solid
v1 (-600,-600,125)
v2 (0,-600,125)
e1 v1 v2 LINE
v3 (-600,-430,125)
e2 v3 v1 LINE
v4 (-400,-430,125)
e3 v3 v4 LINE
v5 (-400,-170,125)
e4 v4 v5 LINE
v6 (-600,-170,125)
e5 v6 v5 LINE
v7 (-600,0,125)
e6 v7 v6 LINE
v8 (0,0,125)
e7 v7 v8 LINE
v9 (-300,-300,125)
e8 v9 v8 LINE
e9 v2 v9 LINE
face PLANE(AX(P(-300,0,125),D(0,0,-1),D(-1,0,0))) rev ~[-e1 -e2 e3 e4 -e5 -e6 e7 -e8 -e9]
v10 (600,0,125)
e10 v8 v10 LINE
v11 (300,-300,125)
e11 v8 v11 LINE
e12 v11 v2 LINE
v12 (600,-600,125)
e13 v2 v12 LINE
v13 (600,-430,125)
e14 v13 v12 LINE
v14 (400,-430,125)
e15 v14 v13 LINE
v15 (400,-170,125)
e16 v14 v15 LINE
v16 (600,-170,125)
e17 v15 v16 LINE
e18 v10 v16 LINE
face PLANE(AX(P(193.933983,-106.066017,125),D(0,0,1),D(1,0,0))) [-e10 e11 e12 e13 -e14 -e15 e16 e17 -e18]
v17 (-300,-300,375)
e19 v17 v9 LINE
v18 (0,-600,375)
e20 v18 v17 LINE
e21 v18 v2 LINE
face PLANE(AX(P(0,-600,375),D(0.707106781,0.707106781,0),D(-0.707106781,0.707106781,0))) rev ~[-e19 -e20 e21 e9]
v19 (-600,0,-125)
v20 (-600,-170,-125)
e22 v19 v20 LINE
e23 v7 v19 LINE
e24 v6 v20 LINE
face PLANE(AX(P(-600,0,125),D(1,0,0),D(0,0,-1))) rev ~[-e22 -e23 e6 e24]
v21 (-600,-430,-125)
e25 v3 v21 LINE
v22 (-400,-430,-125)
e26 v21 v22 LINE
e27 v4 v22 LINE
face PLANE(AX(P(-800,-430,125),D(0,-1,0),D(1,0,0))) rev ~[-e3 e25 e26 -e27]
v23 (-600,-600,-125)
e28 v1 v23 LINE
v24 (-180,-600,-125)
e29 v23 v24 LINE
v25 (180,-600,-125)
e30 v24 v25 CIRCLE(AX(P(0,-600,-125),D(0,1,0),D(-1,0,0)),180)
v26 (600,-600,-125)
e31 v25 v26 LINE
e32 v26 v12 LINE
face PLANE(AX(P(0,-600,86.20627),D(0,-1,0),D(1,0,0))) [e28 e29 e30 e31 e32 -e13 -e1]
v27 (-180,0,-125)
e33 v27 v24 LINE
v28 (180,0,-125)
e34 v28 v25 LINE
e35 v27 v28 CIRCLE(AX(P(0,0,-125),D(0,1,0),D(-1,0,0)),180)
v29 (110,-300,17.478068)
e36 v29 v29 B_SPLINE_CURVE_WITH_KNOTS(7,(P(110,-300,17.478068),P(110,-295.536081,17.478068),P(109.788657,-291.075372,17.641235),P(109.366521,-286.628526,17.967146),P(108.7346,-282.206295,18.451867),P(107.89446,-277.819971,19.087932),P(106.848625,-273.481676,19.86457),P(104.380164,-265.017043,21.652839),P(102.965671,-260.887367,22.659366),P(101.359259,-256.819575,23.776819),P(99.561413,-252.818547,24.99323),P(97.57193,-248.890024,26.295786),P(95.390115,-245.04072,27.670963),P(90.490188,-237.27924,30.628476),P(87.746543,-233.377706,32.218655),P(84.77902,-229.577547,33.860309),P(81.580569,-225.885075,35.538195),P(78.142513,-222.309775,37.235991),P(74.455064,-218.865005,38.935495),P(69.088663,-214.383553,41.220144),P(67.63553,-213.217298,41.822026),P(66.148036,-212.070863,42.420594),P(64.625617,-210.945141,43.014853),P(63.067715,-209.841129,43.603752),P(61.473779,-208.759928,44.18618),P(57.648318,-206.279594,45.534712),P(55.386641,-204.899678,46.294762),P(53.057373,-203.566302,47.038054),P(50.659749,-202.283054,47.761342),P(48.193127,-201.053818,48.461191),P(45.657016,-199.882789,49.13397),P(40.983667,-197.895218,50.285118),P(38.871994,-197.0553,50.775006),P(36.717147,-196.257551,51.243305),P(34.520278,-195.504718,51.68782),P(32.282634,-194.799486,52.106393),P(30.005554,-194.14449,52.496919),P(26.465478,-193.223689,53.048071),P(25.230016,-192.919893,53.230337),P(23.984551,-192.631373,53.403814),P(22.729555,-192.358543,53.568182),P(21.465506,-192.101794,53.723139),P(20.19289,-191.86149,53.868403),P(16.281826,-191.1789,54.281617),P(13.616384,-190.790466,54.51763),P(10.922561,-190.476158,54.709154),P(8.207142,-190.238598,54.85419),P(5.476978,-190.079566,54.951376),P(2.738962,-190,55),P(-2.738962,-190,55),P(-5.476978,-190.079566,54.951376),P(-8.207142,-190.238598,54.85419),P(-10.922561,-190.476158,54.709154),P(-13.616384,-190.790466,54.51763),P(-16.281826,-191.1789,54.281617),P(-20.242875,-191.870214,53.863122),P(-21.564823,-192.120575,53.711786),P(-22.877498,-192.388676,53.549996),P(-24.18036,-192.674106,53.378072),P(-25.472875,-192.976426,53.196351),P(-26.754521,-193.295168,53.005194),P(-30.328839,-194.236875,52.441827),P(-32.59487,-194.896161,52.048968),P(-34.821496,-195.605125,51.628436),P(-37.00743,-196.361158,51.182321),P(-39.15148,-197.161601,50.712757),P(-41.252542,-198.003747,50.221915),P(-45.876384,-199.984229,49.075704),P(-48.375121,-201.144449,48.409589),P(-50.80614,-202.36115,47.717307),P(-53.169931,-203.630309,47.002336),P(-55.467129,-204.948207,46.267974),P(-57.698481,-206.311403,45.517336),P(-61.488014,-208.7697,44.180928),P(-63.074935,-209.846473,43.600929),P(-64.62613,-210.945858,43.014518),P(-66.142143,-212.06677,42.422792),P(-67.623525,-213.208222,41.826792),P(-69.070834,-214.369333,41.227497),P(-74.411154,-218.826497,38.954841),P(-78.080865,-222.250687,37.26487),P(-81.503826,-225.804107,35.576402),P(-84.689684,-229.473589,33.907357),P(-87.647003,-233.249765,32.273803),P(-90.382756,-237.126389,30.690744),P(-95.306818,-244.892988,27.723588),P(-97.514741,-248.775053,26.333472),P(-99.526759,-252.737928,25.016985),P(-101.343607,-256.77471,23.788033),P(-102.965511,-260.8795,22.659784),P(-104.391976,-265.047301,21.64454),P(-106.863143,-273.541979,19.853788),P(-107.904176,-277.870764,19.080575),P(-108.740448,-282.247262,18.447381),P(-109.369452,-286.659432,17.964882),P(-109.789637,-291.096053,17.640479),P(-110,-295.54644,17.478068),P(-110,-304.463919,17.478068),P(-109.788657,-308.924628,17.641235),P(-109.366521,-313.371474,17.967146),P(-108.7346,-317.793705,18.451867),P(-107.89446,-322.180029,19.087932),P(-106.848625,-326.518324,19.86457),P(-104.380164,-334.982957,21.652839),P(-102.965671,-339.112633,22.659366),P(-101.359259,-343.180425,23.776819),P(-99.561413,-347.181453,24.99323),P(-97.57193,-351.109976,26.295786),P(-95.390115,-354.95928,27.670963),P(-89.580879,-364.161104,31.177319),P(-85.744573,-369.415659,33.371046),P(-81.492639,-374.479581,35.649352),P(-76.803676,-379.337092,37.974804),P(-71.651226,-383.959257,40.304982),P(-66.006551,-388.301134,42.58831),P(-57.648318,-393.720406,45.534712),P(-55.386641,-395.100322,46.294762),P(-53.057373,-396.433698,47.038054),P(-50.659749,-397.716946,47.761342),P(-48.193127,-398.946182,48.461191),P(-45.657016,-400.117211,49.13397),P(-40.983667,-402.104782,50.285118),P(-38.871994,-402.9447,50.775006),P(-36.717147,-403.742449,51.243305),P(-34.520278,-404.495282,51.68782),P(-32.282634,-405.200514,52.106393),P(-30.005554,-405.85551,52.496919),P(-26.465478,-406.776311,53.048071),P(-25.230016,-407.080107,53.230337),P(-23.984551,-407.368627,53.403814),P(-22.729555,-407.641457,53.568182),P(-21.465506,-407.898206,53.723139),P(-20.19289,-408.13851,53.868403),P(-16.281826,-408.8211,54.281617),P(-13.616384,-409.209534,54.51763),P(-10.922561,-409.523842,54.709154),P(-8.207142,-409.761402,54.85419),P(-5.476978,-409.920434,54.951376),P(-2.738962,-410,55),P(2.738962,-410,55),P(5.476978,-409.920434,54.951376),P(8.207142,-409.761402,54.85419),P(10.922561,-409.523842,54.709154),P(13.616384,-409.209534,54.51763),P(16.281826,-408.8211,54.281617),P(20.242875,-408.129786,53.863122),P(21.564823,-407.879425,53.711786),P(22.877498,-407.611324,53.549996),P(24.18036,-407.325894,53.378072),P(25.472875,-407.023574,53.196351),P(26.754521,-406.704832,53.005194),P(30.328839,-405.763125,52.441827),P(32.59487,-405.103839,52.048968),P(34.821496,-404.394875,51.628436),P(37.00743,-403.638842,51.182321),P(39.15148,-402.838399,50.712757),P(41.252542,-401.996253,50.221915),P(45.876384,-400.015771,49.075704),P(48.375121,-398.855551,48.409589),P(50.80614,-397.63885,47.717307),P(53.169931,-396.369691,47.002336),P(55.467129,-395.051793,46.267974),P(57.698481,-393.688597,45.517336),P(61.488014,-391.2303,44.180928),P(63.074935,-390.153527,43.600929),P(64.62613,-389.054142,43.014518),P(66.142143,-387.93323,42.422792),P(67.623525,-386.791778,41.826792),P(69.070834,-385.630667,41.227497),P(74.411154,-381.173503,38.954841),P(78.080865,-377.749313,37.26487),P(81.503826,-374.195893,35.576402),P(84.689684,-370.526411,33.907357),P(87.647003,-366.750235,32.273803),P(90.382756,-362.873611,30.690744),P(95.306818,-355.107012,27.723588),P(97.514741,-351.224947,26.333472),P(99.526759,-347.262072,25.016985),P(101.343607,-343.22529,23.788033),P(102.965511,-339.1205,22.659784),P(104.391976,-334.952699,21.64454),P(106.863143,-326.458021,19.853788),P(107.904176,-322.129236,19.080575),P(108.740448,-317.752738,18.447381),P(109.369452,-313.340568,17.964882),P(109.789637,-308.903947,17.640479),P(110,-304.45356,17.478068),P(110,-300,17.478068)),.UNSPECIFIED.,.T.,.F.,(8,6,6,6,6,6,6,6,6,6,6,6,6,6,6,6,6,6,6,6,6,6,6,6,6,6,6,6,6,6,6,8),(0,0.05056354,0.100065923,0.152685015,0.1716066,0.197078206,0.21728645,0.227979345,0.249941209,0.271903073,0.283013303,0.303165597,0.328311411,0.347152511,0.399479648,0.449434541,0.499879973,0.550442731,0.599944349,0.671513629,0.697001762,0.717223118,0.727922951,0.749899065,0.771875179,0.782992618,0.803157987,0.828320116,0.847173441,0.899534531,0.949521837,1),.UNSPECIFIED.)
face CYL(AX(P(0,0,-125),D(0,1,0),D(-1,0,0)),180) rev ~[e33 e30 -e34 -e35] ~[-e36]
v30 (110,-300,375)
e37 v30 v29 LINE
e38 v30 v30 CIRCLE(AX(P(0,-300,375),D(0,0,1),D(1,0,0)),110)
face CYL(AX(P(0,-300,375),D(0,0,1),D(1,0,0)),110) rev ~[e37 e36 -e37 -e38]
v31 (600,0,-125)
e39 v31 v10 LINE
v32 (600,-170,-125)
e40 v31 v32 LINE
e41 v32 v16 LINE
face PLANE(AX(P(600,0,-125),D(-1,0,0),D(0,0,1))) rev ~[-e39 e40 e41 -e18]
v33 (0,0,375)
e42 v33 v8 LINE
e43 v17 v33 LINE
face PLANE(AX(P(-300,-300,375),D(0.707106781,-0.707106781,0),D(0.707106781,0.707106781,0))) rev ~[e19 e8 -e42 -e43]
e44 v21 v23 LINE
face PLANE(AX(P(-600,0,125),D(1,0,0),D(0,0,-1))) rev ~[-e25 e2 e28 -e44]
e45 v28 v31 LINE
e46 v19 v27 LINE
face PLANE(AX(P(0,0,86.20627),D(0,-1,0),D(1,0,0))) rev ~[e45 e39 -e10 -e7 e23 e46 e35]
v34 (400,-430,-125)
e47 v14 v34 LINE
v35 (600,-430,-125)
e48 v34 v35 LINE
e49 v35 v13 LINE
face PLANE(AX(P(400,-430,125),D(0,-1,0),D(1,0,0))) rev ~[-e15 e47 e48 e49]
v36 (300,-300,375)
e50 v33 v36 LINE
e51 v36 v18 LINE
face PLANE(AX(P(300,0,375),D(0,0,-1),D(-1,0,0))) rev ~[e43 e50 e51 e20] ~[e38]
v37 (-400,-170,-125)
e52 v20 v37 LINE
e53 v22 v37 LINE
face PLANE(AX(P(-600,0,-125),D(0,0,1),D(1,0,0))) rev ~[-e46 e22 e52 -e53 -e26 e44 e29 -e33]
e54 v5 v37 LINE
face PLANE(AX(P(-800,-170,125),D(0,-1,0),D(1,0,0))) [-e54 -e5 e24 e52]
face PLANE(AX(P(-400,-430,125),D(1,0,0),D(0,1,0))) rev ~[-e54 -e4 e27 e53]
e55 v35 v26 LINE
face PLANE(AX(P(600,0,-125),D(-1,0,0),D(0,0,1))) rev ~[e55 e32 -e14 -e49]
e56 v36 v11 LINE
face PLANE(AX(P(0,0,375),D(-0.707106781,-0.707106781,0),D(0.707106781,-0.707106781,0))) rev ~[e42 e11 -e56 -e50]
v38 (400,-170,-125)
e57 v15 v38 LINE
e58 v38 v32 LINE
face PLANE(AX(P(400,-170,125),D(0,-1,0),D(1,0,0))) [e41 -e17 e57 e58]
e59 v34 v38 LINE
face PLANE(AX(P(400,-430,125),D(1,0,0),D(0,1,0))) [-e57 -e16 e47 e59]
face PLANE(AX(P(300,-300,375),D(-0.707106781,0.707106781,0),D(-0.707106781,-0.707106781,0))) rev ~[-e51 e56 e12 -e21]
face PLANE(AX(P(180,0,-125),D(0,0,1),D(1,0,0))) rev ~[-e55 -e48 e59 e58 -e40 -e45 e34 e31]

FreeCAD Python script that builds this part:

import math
import FreeCAD as App
import Part
import Sketcher
Q = App.Units.Quantity

doc = App.newDocument("Part")
body = doc.addObject("PartDesign::Body", "Body")

sketch1 = body.newObject("Sketcher::SketchObject", "Sketch")
sketch1.AttachmentSupport = (doc.getObject("XZ_Plane"), [""])
sketch1.MapMode = "FlatFace"
sketch1.addGeometry([
    Part.LineSegment(App.Vector(-600, 125, 0), App.Vector(-600, -125, 0)),
    Part.LineSegment(App.Vector(-600, -125, 0), App.Vector(-180, -125, 0)),
    Part.ArcOfCircle(Part.Circle(App.Vector(0, -125, 0), App.Vector(0, 0, 1), 180), math.radians(0), math.radians(180)),
    Part.LineSegment(App.Vector(180, -125, 0), App.Vector(600, -125, 0)),
    Part.LineSegment(App.Vector(600, -125, 0), App.Vector(600, 125, 0)),
    Part.LineSegment(App.Vector(600, 125, 0), App.Vector(300, 125, 0)),
    Part.LineSegment(App.Vector(300, 125, 0), App.Vector(300, 375, 0)),
    Part.LineSegment(App.Vector(300, 375, 0), App.Vector(-300, 375, 0)),
    Part.LineSegment(App.Vector(-300, 375, 0), App.Vector(-300, 125, 0)),
    Part.LineSegment(App.Vector(-300, 125, 0), App.Vector(-600, 125, 0)),
], False)
sketch1.addConstraint([
    Sketcher.Constraint("Coincident", 0, 2, 1, 1),
    Sketcher.Constraint("Coincident", 1, 2, 2, 2),
    Sketcher.Constraint("Coincident", 2, 1, 3, 1),
    Sketcher.Constraint("Coincident", 3, 2, 4, 1),
    Sketcher.Constraint("Coincident", 4, 2, 5, 1),
    Sketcher.Constraint("Coincident", 5, 2, 6, 1),
    Sketcher.Constraint("Coincident", 6, 2, 7, 1),
    Sketcher.Constraint("Coincident", 7, 2, 8, 1),
    Sketcher.Constraint("Coincident", 8, 2, 9, 1),
    Sketcher.Constraint("Coincident", 9, 2, 0, 1),
    Sketcher.Constraint("Vertical", 0),
    Sketcher.Constraint("Horizontal", 1),
    Sketcher.Constraint("Horizontal", 3),
    Sketcher.Constraint("Vertical", 4),
    Sketcher.Constraint("Horizontal", 5),
    Sketcher.Constraint("Vertical", 6),
    Sketcher.Constraint("Horizontal", 7),
    Sketcher.Constraint("Vertical", 8),
    Sketcher.Constraint("Horizontal", 9),
    Sketcher.Constraint("Symmetric", 0, 2, 4, 2, -1, 1),
    Sketcher.Constraint("Symmetric", 1, 2, 2, 1, -2),
    Sketcher.Constraint("Symmetric", 5, 2, 8, 2, -2),
    Sketcher.Constraint("Horizontal", 2, 3, 0, 2),
    Sketcher.Constraint("Equal", 4, 6),
    Sketcher.Constraint("Radius", 2, Q("180 mm")),
    Sketcher.Constraint("DistanceX", 1, 1, 1, 2, Q("420 mm")),
    Sketcher.Constraint("DistanceX", 5, 2, 5, 1, Q("300 mm")),
    Sketcher.Constraint("DistanceY", 0, 2, 0, 1, Q("250 mm")),
])
pad1 = body.newObject("PartDesign::Pad", "Pad")
pad1.Profile = sketch1
pad1.Length = 600

sketch2 = body.newObject("Sketcher::SketchObject", "Sketch001")
sketch2.AttachmentSupport = (doc.getObject("XY_Plane"), [""])
sketch2.MapMode = "FlatFace"
sketch2.AttachmentOffset = App.Placement(App.Vector(0, 0, 125), App.Rotation())
sketch2.addGeometry([
    Part.LineSegment(App.Vector(-800, -170, 0), App.Vector(-800, -430, 0)),
    Part.LineSegment(App.Vector(-800, -430, 0), App.Vector(-400, -430, 0)),
    Part.LineSegment(App.Vector(-400, -430, 0), App.Vector(-400, -170, 0)),
    Part.LineSegment(App.Vector(-400, -170, 0), App.Vector(-800, -170, 0)),
], False)
sketch2.addConstraint([
    Sketcher.Constraint("Coincident", 0, 2, 1, 1),
    Sketcher.Constraint("Coincident", 1, 2, 2, 1),
    Sketcher.Constraint("Coincident", 2, 2, 3, 1),
    Sketcher.Constraint("Coincident", 3, 2, 0, 1),
    Sketcher.Constraint("Vertical", 0),
    Sketcher.Constraint("Horizontal", 1),
    Sketcher.Constraint("Vertical", 2),
    Sketcher.Constraint("Horizontal", 3),
    Sketcher.Constraint("DistanceX", 1, 1, 1, 2, Q("400 mm")),
    Sketcher.Constraint("DistanceY", 0, 2, 0, 1, Q("260 mm")),
    Sketcher.Constraint("DistanceX", 0, 2, -1, 1, Q("800 mm")),
    Sketcher.Constraint("DistanceY", 0, 2, -1, 1, Q("430 mm")),
])
pocket1 = body.newObject("PartDesign::Pocket", "Pocket")
pocket1.Profile = sketch2
pocket1.Type = "ThroughAll"

sketch3 = body.newObject("Sketcher::SketchObject", "Sketch002")
sketch3.AttachmentSupport = (doc.getObject("XY_Plane"), [""])
sketch3.MapMode = "FlatFace"
sketch3.AttachmentOffset = App.Placement(App.Vector(0, 0, 125), App.Rotation())
sketch3.addGeometry([
    Part.LineSegment(App.Vector(400, -170, 0), App.Vector(400, -430, 0)),
    Part.LineSegment(App.Vector(400, -430, 0), App.Vector(800, -430, 0)),
    Part.LineSegment(App.Vector(800, -430, 0), App.Vector(800, -170, 0)),
    Part.LineSegment(App.Vector(800, -170, 0), App.Vector(400, -170, 0)),
], False)
sketch3.addConstraint([
    Sketcher.Constraint("Coincident", 0, 2, 1, 1),
    Sketcher.Constraint("Coincident", 1, 2, 2, 1),
    Sketcher.Constraint("Coincident", 2, 2, 3, 1),
    Sketcher.Constraint("Coincident", 3, 2, 0, 1),
    Sketcher.Constraint("Vertical", 0),
    Sketcher.Constraint("Horizontal", 1),
    Sketcher.Constraint("Vertical", 2),
    Sketcher.Constraint("Horizontal", 3),
    Sketcher.Constraint("DistanceX", 1, 1, 1, 2, Q("400 mm")),
    Sketcher.Constraint("DistanceY", 0, 2, 0, 1, Q("260 mm")),
    Sketcher.Constraint("DistanceX", -1, 1, 0, 2, Q("400 mm")),
    Sketcher.Constraint("DistanceY", 0, 2, -1, 1, Q("430 mm")),
])
pocket2 = body.newObject("PartDesign::Pocket", "Pocket001")
pocket2.Profile = sketch3
pocket2.Type = "ThroughAll"

sketch4 = body.newObject("Sketcher::SketchObject", "Sketch003")
sketch4.AttachmentSupport = (doc.getObject("XY_Plane"), [""])
sketch4.MapMode = "FlatFace"
sketch4.AttachmentOffset = App.Placement(App.Vector(0, 0, 375), App.Rotation())
sketch4.addGeometry([
    Part.LineSegment(App.Vector(300, -600, 0), App.Vector(300, -300, 0)),
    Part.LineSegment(App.Vector(300, -300, 0), App.Vector(0, -600, 0)),
    Part.LineSegment(App.Vector(0, -600, 0), App.Vector(300, -600, 0)),
    Part.LineSegment(App.Vector(-300, 0, 0), App.Vector(-300, -300, 0)),
    Part.LineSegment(App.Vector(-300, -300, 0), App.Vector(0, 0, 0)),
    Part.LineSegment(App.Vector(0, 0, 0), App.Vector(-300, 0, 0)),
    Part.LineSegment(App.Vector(-300, -600, 0), App.Vector(0, -600, 0)),
    Part.LineSegment(App.Vector(0, -600, 0), App.Vector(-300, -300, 0)),
    Part.LineSegment(App.Vector(-300, -300, 0), App.Vector(-300, -600, 0)),
], False)
sketch4.addConstraint([
    Sketcher.Constraint("Coincident", 0, 2, 1, 1),
    Sketcher.Constraint("Coincident", 1, 2, 2, 1),
    Sketcher.Constraint("Coincident", 2, 2, 0, 1),
    Sketcher.Constraint("Coincident", 3, 2, 4, 1),
    Sketcher.Constraint("Coincident", 4, 2, 5, 1),
    Sketcher.Constraint("Coincident", 5, 2, 3, 1),
    Sketcher.Constraint("Coincident", 6, 2, 7, 1),
    Sketcher.Constraint("Coincident", 7, 2, 8, 1),
    Sketcher.Constraint("Coincident", 8, 2, 6, 1),
    Sketcher.Constraint("Vertical", 0),
    Sketcher.Constraint("Horizontal", 2),
    Sketcher.Constraint("Vertical", 3),
    Sketcher.Constraint("Horizontal", 5),
    Sketcher.Constraint("Horizontal", 6),
    Sketcher.Constraint("Vertical", 8),
    Sketcher.Constraint("Coincident", 4, 2, -1, 1),
    Sketcher.Constraint("Coincident", 6, 2, 1, 2),
    Sketcher.Constraint("Coincident", 7, 2, 3, 2),
    Sketcher.Constraint("Symmetric", 0, 2, 3, 2, -2),
    Sketcher.Constraint("PointOnObject", 1, 2, -2),
    Sketcher.Constraint("Parallel", 1, 4),
    Sketcher.Constraint("Perpendicular", 4, 7),
    Sketcher.Constraint("DistanceX", 2, 1, 2, 2, Q("300 mm")),
])
pocket3 = body.newObject("PartDesign::Pocket", "Pocket002")
pocket3.Profile = sketch4
pocket3.Length = 250

sketch5 = body.newObject("Sketcher::SketchObject", "Sketch004")
sketch5.AttachmentSupport = (doc.getObject("XY_Plane"), [""])
sketch5.MapMode = "FlatFace"
sketch5.AttachmentOffset = App.Placement(App.Vector(0, 0, 375), App.Rotation())
sketch5.addGeometry([
    Part.LineSegment(App.Vector(300, 0, 0), App.Vector(0, 0, 0)),
    Part.LineSegment(App.Vector(0, 0, 0), App.Vector(300, -300, 0)),
    Part.LineSegment(App.Vector(300, -300, 0), App.Vector(300, 0, 0)),
], False)
sketch5.addConstraint([
    Sketcher.Constraint("Coincident", 0, 2, 1, 1),
    Sketcher.Constraint("Coincident", 1, 2, 2, 1),
    Sketcher.Constraint("Coincident", 2, 2, 0, 1),
    Sketcher.Constraint("Horizontal", 0),
    Sketcher.Constraint("Vertical", 2),
    Sketcher.Constraint("Coincident", 0, 2, -1, 1),
    Sketcher.Constraint("Equal", 0, 2),
    Sketcher.Constraint("DistanceX", 0, 2, 0, 1, Q("300 mm")),
])
pocket4 = body.newObject("PartDesign::Pocket", "Pocket003")
pocket4.Profile = sketch5
pocket4.Length = 250

sketch6 = body.newObject("Sketcher::SketchObject", "Sketch005")
sketch6.AttachmentSupport = (doc.getObject("XY_Plane"), [""])
sketch6.MapMode = "FlatFace"
sketch6.AttachmentOffset = App.Placement(App.Vector(0, 0, 375), App.Rotation())
sketch6.addGeometry(Part.Circle(App.Vector(0, -300, 0), App.Vector(0, 0, 1), 110), False)
sketch6.addConstraint([
    Sketcher.Constraint("PointOnObject", 0, 3, -2),
    Sketcher.Constraint("Diameter", 0, Q("220 mm")),
    Sketcher.Constraint("DistanceY", 0, 3, -1, 1, Q("300 mm")),
])
pocket5 = body.newObject("PartDesign::Pocket", "Pocket004")
pocket5.Profile = sketch6
pocket5.Type = "ThroughAll"

doc.recompute()
